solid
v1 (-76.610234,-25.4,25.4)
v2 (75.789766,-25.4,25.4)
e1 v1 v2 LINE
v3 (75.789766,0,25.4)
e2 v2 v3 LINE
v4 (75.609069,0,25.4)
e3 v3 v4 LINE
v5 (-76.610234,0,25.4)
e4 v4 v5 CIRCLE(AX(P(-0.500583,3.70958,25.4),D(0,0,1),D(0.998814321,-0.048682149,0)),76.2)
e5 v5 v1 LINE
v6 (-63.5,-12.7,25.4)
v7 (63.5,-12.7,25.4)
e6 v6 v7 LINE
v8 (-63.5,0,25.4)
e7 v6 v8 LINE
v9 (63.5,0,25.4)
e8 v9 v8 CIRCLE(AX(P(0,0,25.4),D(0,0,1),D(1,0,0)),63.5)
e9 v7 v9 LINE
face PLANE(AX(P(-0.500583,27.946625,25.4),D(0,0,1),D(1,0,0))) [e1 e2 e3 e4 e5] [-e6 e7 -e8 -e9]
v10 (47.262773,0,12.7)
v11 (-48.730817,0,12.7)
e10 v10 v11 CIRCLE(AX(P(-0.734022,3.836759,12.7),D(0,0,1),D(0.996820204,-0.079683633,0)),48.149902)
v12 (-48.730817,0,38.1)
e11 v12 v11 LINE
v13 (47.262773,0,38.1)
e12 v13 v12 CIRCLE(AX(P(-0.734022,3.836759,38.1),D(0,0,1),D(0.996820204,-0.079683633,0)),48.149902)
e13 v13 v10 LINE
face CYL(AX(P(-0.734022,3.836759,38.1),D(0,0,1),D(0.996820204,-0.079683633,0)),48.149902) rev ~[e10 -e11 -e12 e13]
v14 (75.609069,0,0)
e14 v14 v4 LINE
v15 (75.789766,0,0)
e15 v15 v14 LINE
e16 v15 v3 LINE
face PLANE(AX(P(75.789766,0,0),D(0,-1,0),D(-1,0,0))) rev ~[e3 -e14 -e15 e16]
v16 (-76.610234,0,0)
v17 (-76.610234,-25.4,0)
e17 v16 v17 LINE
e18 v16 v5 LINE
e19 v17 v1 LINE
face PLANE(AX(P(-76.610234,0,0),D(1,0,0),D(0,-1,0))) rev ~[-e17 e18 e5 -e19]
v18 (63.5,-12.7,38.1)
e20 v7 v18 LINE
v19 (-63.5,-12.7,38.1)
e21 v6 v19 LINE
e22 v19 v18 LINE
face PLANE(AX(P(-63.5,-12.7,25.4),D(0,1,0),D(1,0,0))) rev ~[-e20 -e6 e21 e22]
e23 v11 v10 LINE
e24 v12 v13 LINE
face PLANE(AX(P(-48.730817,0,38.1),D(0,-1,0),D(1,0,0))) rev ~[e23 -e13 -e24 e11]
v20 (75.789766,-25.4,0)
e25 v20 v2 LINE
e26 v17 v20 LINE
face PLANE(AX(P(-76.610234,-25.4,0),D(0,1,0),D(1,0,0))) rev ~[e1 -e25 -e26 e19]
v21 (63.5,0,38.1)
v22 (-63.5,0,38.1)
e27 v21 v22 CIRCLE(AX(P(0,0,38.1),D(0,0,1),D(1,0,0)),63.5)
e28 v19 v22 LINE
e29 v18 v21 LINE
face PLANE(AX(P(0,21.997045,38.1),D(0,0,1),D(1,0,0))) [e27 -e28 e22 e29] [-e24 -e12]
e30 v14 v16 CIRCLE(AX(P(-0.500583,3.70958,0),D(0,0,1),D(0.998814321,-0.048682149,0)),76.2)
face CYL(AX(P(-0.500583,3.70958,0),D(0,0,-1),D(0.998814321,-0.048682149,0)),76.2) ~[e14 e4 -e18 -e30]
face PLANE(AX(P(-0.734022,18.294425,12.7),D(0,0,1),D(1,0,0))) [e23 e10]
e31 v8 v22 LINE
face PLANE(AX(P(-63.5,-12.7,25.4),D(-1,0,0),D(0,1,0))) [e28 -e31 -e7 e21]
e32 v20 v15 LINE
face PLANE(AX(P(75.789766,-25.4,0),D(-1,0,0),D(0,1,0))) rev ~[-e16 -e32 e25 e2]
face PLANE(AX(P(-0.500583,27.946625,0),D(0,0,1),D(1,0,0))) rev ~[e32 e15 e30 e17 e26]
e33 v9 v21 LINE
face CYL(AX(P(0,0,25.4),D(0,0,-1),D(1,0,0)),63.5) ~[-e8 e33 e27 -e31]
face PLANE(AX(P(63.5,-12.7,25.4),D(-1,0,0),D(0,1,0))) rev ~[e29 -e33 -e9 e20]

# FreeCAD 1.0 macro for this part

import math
import FreeCAD as App
import Part
import Sketcher

V = App.Vector
Q = App.Units.Quantity

doc = App.newDocument("Part")
body = doc.addObject("PartDesign::Body", "Body")

sketch1 = body.newObject("Sketcher::SketchObject", "Sketch")
sketch1.AttachmentSupport = (doc.getObject("XY_Plane"), [""])
sketch1.MapMode = "FlatFace"
sketch1.addGeometry(Part.ArcOfCircle(Part.Circle(V(-0.500583, 3.70958, 0), V(0, 0, 1), 76.2), math.radians(-2.790385), math.radians(182.790385)), False)
sketch1.addGeometry(Part.LineSegment(V(-76.610234, 0, 0), V(-76.610234, -25.4, 0)), False)
sketch1.addGeometry(Part.LineSegment(V(-76.610234, -25.4, 0), V(75.789766, -25.4, 0)), False)
sketch1.addGeometry(Part.LineSegment(V(75.789766, -25.4, 0), V(75.789766, 0, 0)), False)
sketch1.addGeometry(Part.LineSegment(V(75.789766, 0, 0), V(75.609069, 0, 0)), False)
sketch1.addConstraint(Sketcher.Constraint("Coincident", 0, 2, 1, 1))
sketch1.addConstraint(Sketcher.Constraint("Coincident", 1, 2, 2, 1))
sketch1.addConstraint(Sketcher.Constraint("Coincident", 2, 2, 3, 1))
sketch1.addConstraint(Sketcher.Constraint("Coincident", 3, 2, 4, 1))
sketch1.addConstraint(Sketcher.Constraint("Coincident", 4, 2, 0, 1))
sketch1.addConstraint(Sketcher.Constraint("Vertical", 1))
sketch1.addConstraint(Sketcher.Constraint("Horizontal", 2))
sketch1.addConstraint(Sketcher.Constraint("Vertical", 3))
sketch1.addConstraint(Sketcher.Constraint("Horizontal", 4))
sketch1.addConstraint(Sketcher.Constraint("PointOnObject", 0, 2, -1))
sketch1.addConstraint(Sketcher.Constraint("PointOnObject", 3, 2, -1))
sketch1.addConstraint(Sketcher.Constraint("Radius", 0, Q("3 in")))
sketch1.addConstraint(Sketcher.Constraint("DistanceX", 2, 1, 2, 2, Q("6 in")))
sketch1.addConstraint(Sketcher.Constraint("DistanceY", 1, 2, 1, 1, Q("1 in")))
sketch1.addConstraint(Sketcher.Constraint("DistanceX", 4, 2, 4, 1, 0.180697))
sketch1.addConstraint(Sketcher.Constraint("DistanceX", -1, 1, 4, 2, 75.609069))
pad1 = body.newObject("PartDesign::Pad", "Pad")
pad1.Profile = sketch1
pad1.Length = Q("1 in")

sketch2 = body.newObject("Sketcher::SketchObject", "Sketch001")
sketch2.AttachmentSupport = (doc.getObject("XY_Plane"), [""])
sketch2.MapMode = "FlatFace"
sketch2.AttachmentOffset = App.Placement(V(0, 0, 1 * 25.4), App.Rotation())
sketch2.addGeometry(Part.ArcOfCircle(Part.Circle(V(0, 0, 0), V(0, 0, 1), 63.5), math.radians(0), math.radians(180)), False)
sketch2.addGeometry(Part.LineSegment(V(-63.5, 0, 0), V(-63.5, -12.7, 0)), False)
sketch2.addGeometry(Part.LineSegment(V(-63.5, -12.7, 0), V(63.5, -12.7, 0)), False)
sketch2.addGeometry(Part.LineSegment(V(63.5, -12.7, 0), V(63.5, 0, 0)), False)
sketch2.addConstraint(Sketcher.Constraint("Tangent", 0, 2, 1, 1))
sketch2.addConstraint(Sketcher.Constraint("Coincident", 1, 2, 2, 1))
sketch2.addConstraint(Sketcher.Constraint("Coincident", 2, 2, 3, 1))
sketch2.addConstraint(Sketcher.Constraint("Tangent", 3, 2, 0, 1))
sketch2.addConstraint(Sketcher.Constraint("Vertical", 1))
sketch2.addConstraint(Sketcher.Constraint("Horizontal", 2))
sketch2.addConstraint(Sketcher.Constraint("Vertical", 3))
sketch2.addConstraint(Sketcher.Constraint("Coincident", 0, 3, -1, 1))
sketch2.addConstraint(Sketcher.Constraint("Radius", 0, Q("2.5 in")))
sketch2.addConstraint(Sketcher.Constraint("DistanceY", 1, 2, 1, 1, Q("0.5 in")))
pad2 = body.newObject("PartDesign::Pad", "Pad001")
pad2.Profile = sketch2
pad2.Length = Q("0.5 in")

sketch3 = body.newObject("Sketcher::SketchObject", "Sketch002")
sketch3.AttachmentSupport = (doc.getObject("XY_Plane"), [""])
sketch3.MapMode = "FlatFace"
sketch3.AttachmentOffset = App.Placement(V(0, 0, 1.5 * 25.4), App.Rotation())
sketch3.addGeometry(Part.LineSegment(V(-48.730817, 0, 0), V(47.262773, 0, 0)), False)
sketch3.addGeometry(Part.ArcOfCircle(Part.Circle(V(-0.734022, 3.836759, 0), V(0, 0, 1), 48.149902), math.radians(-4.570381), math.radians(184.570381)), False)
sketch3.addConstraint(Sketcher.Constraint("Coincident", 0, 1, 1, 2))
sketch3.addConstraint(Sketcher.Constraint("Coincident", 1, 1, 0, 2))
sketch3.addConstraint(Sketcher.Constraint("Horizontal", 0))
sketch3.addConstraint(Sketcher.Constraint("PointOnObject", 0, 1, -1))
sketch3.addConstraint(Sketcher.Constraint("Radius", 1, 48.149902))
sketch3.addConstraint(Sketcher.Constraint("DistanceX", 0, 1, 0, 2, 95.99359))
sketch3.addConstraint(Sketcher.Constraint("DistanceX", 1, 3, -1, 1, 0.734022))
pocket1 = body.newObject("PartDesign::Pocket", "Pocket")
pocket1.Profile = sketch3
pocket1.Length = Q("1 in")

doc.recompute()
